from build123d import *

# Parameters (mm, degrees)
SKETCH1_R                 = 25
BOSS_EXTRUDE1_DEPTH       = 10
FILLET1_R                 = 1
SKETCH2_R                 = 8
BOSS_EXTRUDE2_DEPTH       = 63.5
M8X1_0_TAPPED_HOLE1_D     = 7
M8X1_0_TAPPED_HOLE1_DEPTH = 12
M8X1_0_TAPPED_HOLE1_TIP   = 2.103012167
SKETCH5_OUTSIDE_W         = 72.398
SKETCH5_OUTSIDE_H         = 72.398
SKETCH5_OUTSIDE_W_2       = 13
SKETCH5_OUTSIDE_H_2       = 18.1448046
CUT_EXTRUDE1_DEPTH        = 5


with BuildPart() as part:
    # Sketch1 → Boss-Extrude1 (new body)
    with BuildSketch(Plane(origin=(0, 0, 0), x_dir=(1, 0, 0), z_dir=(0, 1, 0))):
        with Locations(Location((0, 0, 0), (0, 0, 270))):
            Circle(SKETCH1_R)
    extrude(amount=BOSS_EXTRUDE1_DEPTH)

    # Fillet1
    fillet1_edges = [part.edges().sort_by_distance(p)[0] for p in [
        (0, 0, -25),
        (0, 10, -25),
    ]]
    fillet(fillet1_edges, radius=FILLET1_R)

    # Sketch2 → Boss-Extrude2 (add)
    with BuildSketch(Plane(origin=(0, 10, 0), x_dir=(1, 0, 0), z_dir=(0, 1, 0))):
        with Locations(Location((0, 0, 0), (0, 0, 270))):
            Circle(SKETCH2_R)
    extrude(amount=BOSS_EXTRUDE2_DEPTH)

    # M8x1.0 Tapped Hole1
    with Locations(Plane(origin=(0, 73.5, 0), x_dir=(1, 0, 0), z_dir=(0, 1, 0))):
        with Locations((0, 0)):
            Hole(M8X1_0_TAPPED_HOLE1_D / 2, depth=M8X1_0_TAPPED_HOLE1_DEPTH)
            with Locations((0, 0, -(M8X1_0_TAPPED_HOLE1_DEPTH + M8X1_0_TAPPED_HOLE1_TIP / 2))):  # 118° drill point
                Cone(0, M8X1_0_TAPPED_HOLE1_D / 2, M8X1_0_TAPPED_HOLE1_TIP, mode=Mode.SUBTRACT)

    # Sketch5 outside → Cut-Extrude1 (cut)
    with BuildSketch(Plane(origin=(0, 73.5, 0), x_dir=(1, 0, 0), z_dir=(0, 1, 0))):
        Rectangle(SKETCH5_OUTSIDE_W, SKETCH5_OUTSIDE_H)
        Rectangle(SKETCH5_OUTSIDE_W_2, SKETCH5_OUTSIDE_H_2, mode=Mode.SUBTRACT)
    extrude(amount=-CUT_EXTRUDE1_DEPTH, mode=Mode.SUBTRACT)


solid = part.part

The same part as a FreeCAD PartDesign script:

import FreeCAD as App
import Part
import Sketcher
Q = App.Units.Quantity


def edges_at(feature, points):
    """Names of the edges that pass closest to the given points."""
    edges = feature.Shape.Edges
    near = lambda p: min(range(len(edges)), key=lambda i: edges[i].distToShape(Part.Vertex(*p))[0])
    return sorted({f"Edge{near(p) + 1}" for p in points})


def add_polygon(sketch, points):
    """Adds a closed chain of lines whose ends are joined by coincident constraints."""
    first, n = sketch.GeometryCount, len(points)
    for a, b in zip(points, points[1:] + points[:1]):
        sketch.addGeometry(Part.LineSegment(App.Vector(*a, 0), App.Vector(*b, 0)), False)
    for i in range(n):
        sketch.addConstraint(Sketcher.Constraint("Coincident", first + i, 2, first + (i + 1) % n, 1))

doc = App.newDocument("Part")
body = doc.addObject("PartDesign::Body", "Body")

sketch1 = body.newObject("Sketcher::SketchObject", "Sketch")
sketch1.AttachmentSupport = (doc.getObject("XZ_Plane"), [""])
sketch1.MapMode = "FlatFace"
sketch1.addGeometry(Part.Circle(App.Vector(0, 0, 0), App.Vector(0, 0, 1), 25), False)
sketch1.addConstraint([
    Sketcher.Constraint("Coincident", 0, 3, -1, 1),
    Sketcher.Constraint("Diameter", 0, Q("50 mm")),
])
pad1 = body.newObject("PartDesign::Pad", "Pad")
pad1.Profile = sketch1
pad1.Length = 10
pad1.Reversed = True
doc.recompute()

fillet = body.newObject("PartDesign::Fillet", "Fillet")
fillet.Base = (pad1, edges_at(pad1, [(0, 0, -25), (0, 10, -25)]))
fillet.Radius = 1

sketch2 = body.newObject("Sketcher::SketchObject", "Sketch001")
sketch2.AttachmentSupport = (doc.getObject("XZ_Plane"), [""])
sketch2.MapMode = "FlatFace"
sketch2.AttachmentOffset = App.Placement(App.Vector(0, 0, -10), App.Rotation())
sketch2.addGeometry(Part.Circle(App.Vector(0, 0, 0), App.Vector(0, 0, 1), 8), False)
sketch2.addConstraint([
    Sketcher.Constraint("Coincident", 0, 3, -1, 1),
    Sketcher.Constraint("Diameter", 0, Q("16 mm")),
])
pad2 = body.newObject("PartDesign::Pad", "Pad001")
pad2.Profile = sketch2
pad2.Length = 63.5
pad2.Reversed = True

sketch3 = body.newObject("Sketcher::SketchObject", "Sketch002")
sketch3.AttachmentSupport = (doc.getObject("XZ_Plane"), [""])
sketch3.MapMode = "FlatFace"
sketch3.AttachmentOffset = App.Placement(App.Vector(0, 0, -73.5), App.Rotation())
sketch3.addGeometry(Part.Circle(App.Vector(0, 0, 0), App.Vector(0, 0, 1), 3.5), False)
sketch3.addConstraint([
    Sketcher.Constraint("Coincident", 0, 3, -1, 1),
    Sketcher.Constraint("Diameter", 0, Q("7 mm")),
])
doc.recompute()
hole = body.newObject("PartDesign::Hole", "Hole")
hole.Profile = sketch3
hole.ThreadType = "None"
hole.Diameter = 7
hole.DepthType = "Dimension"
hole.Depth = 12
hole.DrillPoint = "Angled"
hole.DrillPointAngle = 118
hole.Reversed = True

sketch4 = body.newObject("Sketcher::SketchObject", "Sketch003")
sketch4.AttachmentSupport = (doc.getObject("XZ_Plane"), [""])
sketch4.MapMode = "FlatFace"
sketch4.AttachmentOffset = App.Placement(App.Vector(0, 0, -73.5), App.Rotation())
add_polygon(sketch4, [(-36.199, -36.199), (-36.199, 36.199), (36.199, 36.199), (36.199, -36.199)])
add_polygon(sketch4, [(6.5, 9.072402), (-6.5, 9.072402), (-6.5, -9.072402), (6.5, -9.072402)])
sketch4.addConstraint([
    Sketcher.Constraint("Vertical", 0),
    Sketcher.Constraint("Horizontal", 1),
    Sketcher.Constraint("Vertical", 2),
    Sketcher.Constraint("Horizontal", 3),
    Sketcher.Constraint("Horizontal", 4),
    Sketcher.Constraint("Vertical", 5),
    Sketcher.Constraint("Horizontal", 6),
    Sketcher.Constraint("Vertical", 7),
    Sketcher.Constraint("Symmetric", 0, 2, 2, 2, -1, 1),
    Sketcher.Constraint("Symmetric", 4, 2, 6, 2, -1, 1),
    Sketcher.Constraint("Equal", 3, 0),
    Sketcher.Constraint("DistanceX", 4, 2, 4, 1, Q("13 mm")),
    Sketcher.Constraint("DistanceX", 1, 1, 1, 2, Q("72.398 mm")),
    Sketcher.Constraint("DistanceY", 5, 2, 5, 1, Q("18.144805 mm")),
])
pocket1 = body.newObject("PartDesign::Pocket", "Pocket")
pocket1.Profile = sketch4
pocket1.Length = 5
pocket1.Reversed = True

doc.recompute()
